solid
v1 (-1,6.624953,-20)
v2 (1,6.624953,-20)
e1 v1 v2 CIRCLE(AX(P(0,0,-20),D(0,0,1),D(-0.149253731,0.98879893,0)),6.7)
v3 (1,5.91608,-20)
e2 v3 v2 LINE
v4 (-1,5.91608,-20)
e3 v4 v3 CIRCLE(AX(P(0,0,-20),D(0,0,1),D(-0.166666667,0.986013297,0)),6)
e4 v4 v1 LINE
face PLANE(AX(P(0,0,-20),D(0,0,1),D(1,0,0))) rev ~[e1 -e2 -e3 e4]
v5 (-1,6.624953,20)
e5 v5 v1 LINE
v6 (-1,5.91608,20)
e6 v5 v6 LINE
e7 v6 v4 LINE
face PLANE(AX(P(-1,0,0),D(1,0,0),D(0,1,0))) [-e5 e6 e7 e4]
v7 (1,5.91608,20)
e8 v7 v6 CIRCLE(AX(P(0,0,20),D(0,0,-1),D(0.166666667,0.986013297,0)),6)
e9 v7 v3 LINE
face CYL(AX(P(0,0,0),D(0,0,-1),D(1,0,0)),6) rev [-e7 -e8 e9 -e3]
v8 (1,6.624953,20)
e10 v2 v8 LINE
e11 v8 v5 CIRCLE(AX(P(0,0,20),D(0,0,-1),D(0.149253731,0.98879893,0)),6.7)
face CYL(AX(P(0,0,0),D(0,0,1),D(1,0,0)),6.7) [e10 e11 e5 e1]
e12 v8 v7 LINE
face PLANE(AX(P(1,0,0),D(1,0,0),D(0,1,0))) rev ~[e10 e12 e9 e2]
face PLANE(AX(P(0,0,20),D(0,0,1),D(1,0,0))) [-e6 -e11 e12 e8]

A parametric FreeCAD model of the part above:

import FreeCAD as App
import Part
import Sketcher
from FreeCAD import Vector


def add_polygon(sketch, points):
    """Adds a closed chain of lines whose ends are joined by coincident constraints."""
    first, n = sketch.GeometryCount, len(points)
    for a, b in zip(points, points[1:] + points[:1]):
        sketch.addGeometry(Part.LineSegment(App.Vector(*a, 0), App.Vector(*b, 0)), False)
    for i in range(n):
        sketch.addConstraint(Sketcher.Constraint("Coincident", first + i, 2, first + (i + 1) % n, 1))

doc = App.newDocument("Part")
body = doc.addObject("PartDesign::Body", "Body")

# Sketch on XY plane
sketch1 = doc.addObject("Sketcher::SketchObject", "Sketch")
body.addObject(sketch1)
sketch1.AttachmentSupport = (doc.XY_Plane, [""])
sketch1.MapMode = "FlatFace"
sketch1.addGeometry([
    Part.Circle(Vector(0, 0, 0), Vector(0, 0, 1), 6.7),
    Part.Circle(Vector(0, 0, 0), Vector(0, 0, 1), 6),
], False)
sketch1.addConstraint([
    Sketcher.Constraint("Coincident", 0, 3, -1, 1),
    Sketcher.Constraint("Coincident", 1, 3, -1, 1),
    Sketcher.Constraint("Diameter", 1, 12.0),
    Sketcher.Constraint("Diameter", 0, 13.4),
])
pad1 = doc.addObject("PartDesign::Pad", "Pad")
body.addObject(pad1)
pad1.Profile = sketch1
pad1.Length = 40
pad1.Midplane = True

# Sketch on XY plane
sketch2 = doc.addObject("Sketcher::SketchObject", "Sketch001")
body.addObject(sketch2)
sketch2.AttachmentSupport = (doc.XY_Plane, [""])
sketch2.MapMode = "FlatFace"
add_polygon(sketch2, [(-1, 6.7), (-1, 0), (1, 0), (1, 6.7)])  # lines 0-3
sketch2.addConstraint([
    Sketcher.Constraint("Vertical", 0),
    Sketcher.Constraint("Horizontal", 1),
    Sketcher.Constraint("Vertical", 2),
    Sketcher.Constraint("Horizontal", 3),
    Sketcher.Constraint("Symmetric", 0, 2, 1, 2, -1, 1),
    Sketcher.Constraint("DistanceX", 1, 1, 1, 2, 2.0),
    Sketcher.Constraint("DistanceY", 0, 2, 0, 1, 6.7),
])
pocket1 = doc.addObject("PartDesign::Pocket", "Pocket")
body.addObject(pocket1)
pocket1.Profile = sketch2
pocket1.Type = "ThroughAll"
pocket1.Midplane = True

doc.recompute()
